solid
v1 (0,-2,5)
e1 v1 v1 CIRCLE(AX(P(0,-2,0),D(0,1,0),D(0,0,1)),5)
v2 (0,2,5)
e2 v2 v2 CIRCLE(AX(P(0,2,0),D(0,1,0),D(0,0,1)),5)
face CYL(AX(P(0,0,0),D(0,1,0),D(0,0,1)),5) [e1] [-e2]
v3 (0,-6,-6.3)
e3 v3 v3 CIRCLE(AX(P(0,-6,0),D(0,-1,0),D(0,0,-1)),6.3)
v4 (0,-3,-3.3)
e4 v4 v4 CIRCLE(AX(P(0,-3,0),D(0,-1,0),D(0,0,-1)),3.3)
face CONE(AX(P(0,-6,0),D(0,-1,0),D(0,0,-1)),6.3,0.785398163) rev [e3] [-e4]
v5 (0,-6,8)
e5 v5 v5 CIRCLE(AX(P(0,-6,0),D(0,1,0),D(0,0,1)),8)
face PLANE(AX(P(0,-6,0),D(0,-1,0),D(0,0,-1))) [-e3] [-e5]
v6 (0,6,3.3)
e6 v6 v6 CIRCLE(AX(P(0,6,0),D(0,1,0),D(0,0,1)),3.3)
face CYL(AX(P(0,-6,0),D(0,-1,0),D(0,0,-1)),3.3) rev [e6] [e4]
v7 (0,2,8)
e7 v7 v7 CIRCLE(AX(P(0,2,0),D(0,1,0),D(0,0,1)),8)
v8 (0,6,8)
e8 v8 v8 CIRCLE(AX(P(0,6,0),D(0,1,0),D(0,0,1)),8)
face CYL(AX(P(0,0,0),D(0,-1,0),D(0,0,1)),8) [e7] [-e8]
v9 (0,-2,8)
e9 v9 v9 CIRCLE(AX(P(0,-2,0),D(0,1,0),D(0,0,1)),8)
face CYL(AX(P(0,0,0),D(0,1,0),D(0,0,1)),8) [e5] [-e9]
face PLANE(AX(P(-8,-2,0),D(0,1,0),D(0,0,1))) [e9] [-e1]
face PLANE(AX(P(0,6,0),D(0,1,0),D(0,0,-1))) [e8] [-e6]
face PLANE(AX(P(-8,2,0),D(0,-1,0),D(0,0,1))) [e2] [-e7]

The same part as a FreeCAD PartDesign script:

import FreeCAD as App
import Part
import Sketcher

V = App.Vector

doc = App.newDocument("Part")
params = doc.addObject("Spreadsheet::Sheet", "Params")
for row, (alias, value) in enumerate([
    ("sketch1_width", "5 mm"),
    ("sketch1_width2", "3 mm"),
    ("sketch1_height", "6 mm"),
    ("sketch1_height2", "2 mm"),
    ("revolution_angle", "360 deg"),
    ("sketch2_diameter", "6.6 mm"),
    ("hole_diameter", "6.6 mm"),
    ("hole_csink_diameter", "12.6 mm"),
], start=1):
    params.set(f"A{row}", alias)
    params.set(f"B{row}", "=" + value)
    params.setAlias(f"B{row}", alias)

body = doc.addObject("PartDesign::Body", "Body")

# Sketch on XY plane
sketch1 = body.newObject("Sketcher::SketchObject", "Sketch")
sketch1.AttachmentSupport = (doc.getObject("XY_Plane"), [""])
sketch1.MapMode = "FlatFace"
sketch1.addGeometry([
    Part.LineSegment(V(0, -6, 0), V(0, 0, 0)),  # 0
    Part.LineSegment(V(0, 0, 0), V(-5, 0, 0)),  # 1
    Part.LineSegment(V(-5, 0, 0), V(-5, -2, 0)),  # 2
    Part.LineSegment(V(-5, -2, 0), V(-8, -2, 0)),  # 3
    Part.LineSegment(V(-8, -2, 0), V(-8, -6, 0)),  # 4
    Part.LineSegment(V(-8, -6, 0), V(0, -6, 0)),  # 5
], False)
sketch1.addConstraint([
    Sketcher.Constraint("Coincident", 0, 2, 1, 1),
    Sketcher.Constraint("Coincident", 1, 2, 2, 1),
    Sketcher.Constraint("Coincident", 2, 2, 3, 1),
    Sketcher.Constraint("Coincident", 3, 2, 4, 1),
    Sketcher.Constraint("Coincident", 4, 2, 5, 1),
    Sketcher.Constraint("Coincident", 5, 2, 0, 1),
    Sketcher.Constraint("Vertical", 0),
    Sketcher.Constraint("Horizontal", 1),
    Sketcher.Constraint("Vertical", 2),
    Sketcher.Constraint("Horizontal", 3),
    Sketcher.Constraint("Vertical", 4),
    Sketcher.Constraint("Horizontal", 5),
    Sketcher.Constraint("Coincident", 0, 2, -1, 1),
    Sketcher.Constraint("DistanceX", 1, 2, 1, 1, 5.0),
    Sketcher.Constraint("DistanceX", 3, 2, 3, 1, 3.0),
    Sketcher.Constraint("DistanceY", 0, 1, 0, 2, 6.0),
    Sketcher.Constraint("DistanceY", 2, 2, 2, 1, 2.0),
])
sketch1.setExpression("Constraints[13]", "Params.sketch1_width")
sketch1.setExpression("Constraints[14]", "Params.sketch1_width2")
sketch1.setExpression("Constraints[15]", "Params.sketch1_height")
sketch1.setExpression("Constraints[16]", "Params.sketch1_height2")
revolution = body.newObject("PartDesign::Revolution", "Revolution")
revolution.Profile = sketch1
revolution.ReferenceAxis = (sketch1, ["V_Axis"])
revolution.setExpression("Angle", "Params.revolution_angle")
body2 = doc.addObject("PartDesign::Body", "Body001")
doc.recompute()

body2.BaseFeature = body
doc.recompute()

mirroring = doc.addObject("Part::Mirroring", "Mirroring")
mirroring.Source = body
mirroring.Base = V(-5, 0, 0)
mirroring.Normal = V(0, 1, 0)
body3 = doc.addObject("PartDesign::Body", "Body002")
body3.BaseFeature = mirroring
boolean = body2.newObject("PartDesign::Boolean", "Boolean")
boolean.Type = "Fuse"
boolean.addObjects([body3])
doc.recompute()

# Sketch on XZ plane
sketch2 = body2.newObject("Sketcher::SketchObject", "Sketch001")
sketch2.AttachmentSupport = (doc.getObject("XZ_Plane001"), [""])
sketch2.MapMode = "FlatFace"
sketch2.AttachmentOffset = App.Placement(V(0, 0, 6), App.Rotation())
sketch2.addGeometry(Part.Circle(V(0, 0, 0), V(0, 0, 1), 3.3), False)
sketch2.addConstraint([
    Sketcher.Constraint("Coincident", 0, 3, -1, 1),
    Sketcher.Constraint("Diameter", 0, 6.6),
])
sketch2.setExpression("Constraints[1]", "Params.sketch2_diameter")
doc.recompute()
hole = body2.newObject("PartDesign::Hole", "Hole")
hole.Profile = sketch2
hole.ThreadType = "None"
hole.setExpression("Diameter", "Params.hole_diameter")
hole.DepthType = "ThroughAll"
hole.HoleCutType = "Countersink"
hole.setExpression("HoleCutDiameter", "Params.hole_csink_diameter")
hole.HoleCutCountersinkAngle = 90
mirroring.Visibility = False

doc.recompute()
